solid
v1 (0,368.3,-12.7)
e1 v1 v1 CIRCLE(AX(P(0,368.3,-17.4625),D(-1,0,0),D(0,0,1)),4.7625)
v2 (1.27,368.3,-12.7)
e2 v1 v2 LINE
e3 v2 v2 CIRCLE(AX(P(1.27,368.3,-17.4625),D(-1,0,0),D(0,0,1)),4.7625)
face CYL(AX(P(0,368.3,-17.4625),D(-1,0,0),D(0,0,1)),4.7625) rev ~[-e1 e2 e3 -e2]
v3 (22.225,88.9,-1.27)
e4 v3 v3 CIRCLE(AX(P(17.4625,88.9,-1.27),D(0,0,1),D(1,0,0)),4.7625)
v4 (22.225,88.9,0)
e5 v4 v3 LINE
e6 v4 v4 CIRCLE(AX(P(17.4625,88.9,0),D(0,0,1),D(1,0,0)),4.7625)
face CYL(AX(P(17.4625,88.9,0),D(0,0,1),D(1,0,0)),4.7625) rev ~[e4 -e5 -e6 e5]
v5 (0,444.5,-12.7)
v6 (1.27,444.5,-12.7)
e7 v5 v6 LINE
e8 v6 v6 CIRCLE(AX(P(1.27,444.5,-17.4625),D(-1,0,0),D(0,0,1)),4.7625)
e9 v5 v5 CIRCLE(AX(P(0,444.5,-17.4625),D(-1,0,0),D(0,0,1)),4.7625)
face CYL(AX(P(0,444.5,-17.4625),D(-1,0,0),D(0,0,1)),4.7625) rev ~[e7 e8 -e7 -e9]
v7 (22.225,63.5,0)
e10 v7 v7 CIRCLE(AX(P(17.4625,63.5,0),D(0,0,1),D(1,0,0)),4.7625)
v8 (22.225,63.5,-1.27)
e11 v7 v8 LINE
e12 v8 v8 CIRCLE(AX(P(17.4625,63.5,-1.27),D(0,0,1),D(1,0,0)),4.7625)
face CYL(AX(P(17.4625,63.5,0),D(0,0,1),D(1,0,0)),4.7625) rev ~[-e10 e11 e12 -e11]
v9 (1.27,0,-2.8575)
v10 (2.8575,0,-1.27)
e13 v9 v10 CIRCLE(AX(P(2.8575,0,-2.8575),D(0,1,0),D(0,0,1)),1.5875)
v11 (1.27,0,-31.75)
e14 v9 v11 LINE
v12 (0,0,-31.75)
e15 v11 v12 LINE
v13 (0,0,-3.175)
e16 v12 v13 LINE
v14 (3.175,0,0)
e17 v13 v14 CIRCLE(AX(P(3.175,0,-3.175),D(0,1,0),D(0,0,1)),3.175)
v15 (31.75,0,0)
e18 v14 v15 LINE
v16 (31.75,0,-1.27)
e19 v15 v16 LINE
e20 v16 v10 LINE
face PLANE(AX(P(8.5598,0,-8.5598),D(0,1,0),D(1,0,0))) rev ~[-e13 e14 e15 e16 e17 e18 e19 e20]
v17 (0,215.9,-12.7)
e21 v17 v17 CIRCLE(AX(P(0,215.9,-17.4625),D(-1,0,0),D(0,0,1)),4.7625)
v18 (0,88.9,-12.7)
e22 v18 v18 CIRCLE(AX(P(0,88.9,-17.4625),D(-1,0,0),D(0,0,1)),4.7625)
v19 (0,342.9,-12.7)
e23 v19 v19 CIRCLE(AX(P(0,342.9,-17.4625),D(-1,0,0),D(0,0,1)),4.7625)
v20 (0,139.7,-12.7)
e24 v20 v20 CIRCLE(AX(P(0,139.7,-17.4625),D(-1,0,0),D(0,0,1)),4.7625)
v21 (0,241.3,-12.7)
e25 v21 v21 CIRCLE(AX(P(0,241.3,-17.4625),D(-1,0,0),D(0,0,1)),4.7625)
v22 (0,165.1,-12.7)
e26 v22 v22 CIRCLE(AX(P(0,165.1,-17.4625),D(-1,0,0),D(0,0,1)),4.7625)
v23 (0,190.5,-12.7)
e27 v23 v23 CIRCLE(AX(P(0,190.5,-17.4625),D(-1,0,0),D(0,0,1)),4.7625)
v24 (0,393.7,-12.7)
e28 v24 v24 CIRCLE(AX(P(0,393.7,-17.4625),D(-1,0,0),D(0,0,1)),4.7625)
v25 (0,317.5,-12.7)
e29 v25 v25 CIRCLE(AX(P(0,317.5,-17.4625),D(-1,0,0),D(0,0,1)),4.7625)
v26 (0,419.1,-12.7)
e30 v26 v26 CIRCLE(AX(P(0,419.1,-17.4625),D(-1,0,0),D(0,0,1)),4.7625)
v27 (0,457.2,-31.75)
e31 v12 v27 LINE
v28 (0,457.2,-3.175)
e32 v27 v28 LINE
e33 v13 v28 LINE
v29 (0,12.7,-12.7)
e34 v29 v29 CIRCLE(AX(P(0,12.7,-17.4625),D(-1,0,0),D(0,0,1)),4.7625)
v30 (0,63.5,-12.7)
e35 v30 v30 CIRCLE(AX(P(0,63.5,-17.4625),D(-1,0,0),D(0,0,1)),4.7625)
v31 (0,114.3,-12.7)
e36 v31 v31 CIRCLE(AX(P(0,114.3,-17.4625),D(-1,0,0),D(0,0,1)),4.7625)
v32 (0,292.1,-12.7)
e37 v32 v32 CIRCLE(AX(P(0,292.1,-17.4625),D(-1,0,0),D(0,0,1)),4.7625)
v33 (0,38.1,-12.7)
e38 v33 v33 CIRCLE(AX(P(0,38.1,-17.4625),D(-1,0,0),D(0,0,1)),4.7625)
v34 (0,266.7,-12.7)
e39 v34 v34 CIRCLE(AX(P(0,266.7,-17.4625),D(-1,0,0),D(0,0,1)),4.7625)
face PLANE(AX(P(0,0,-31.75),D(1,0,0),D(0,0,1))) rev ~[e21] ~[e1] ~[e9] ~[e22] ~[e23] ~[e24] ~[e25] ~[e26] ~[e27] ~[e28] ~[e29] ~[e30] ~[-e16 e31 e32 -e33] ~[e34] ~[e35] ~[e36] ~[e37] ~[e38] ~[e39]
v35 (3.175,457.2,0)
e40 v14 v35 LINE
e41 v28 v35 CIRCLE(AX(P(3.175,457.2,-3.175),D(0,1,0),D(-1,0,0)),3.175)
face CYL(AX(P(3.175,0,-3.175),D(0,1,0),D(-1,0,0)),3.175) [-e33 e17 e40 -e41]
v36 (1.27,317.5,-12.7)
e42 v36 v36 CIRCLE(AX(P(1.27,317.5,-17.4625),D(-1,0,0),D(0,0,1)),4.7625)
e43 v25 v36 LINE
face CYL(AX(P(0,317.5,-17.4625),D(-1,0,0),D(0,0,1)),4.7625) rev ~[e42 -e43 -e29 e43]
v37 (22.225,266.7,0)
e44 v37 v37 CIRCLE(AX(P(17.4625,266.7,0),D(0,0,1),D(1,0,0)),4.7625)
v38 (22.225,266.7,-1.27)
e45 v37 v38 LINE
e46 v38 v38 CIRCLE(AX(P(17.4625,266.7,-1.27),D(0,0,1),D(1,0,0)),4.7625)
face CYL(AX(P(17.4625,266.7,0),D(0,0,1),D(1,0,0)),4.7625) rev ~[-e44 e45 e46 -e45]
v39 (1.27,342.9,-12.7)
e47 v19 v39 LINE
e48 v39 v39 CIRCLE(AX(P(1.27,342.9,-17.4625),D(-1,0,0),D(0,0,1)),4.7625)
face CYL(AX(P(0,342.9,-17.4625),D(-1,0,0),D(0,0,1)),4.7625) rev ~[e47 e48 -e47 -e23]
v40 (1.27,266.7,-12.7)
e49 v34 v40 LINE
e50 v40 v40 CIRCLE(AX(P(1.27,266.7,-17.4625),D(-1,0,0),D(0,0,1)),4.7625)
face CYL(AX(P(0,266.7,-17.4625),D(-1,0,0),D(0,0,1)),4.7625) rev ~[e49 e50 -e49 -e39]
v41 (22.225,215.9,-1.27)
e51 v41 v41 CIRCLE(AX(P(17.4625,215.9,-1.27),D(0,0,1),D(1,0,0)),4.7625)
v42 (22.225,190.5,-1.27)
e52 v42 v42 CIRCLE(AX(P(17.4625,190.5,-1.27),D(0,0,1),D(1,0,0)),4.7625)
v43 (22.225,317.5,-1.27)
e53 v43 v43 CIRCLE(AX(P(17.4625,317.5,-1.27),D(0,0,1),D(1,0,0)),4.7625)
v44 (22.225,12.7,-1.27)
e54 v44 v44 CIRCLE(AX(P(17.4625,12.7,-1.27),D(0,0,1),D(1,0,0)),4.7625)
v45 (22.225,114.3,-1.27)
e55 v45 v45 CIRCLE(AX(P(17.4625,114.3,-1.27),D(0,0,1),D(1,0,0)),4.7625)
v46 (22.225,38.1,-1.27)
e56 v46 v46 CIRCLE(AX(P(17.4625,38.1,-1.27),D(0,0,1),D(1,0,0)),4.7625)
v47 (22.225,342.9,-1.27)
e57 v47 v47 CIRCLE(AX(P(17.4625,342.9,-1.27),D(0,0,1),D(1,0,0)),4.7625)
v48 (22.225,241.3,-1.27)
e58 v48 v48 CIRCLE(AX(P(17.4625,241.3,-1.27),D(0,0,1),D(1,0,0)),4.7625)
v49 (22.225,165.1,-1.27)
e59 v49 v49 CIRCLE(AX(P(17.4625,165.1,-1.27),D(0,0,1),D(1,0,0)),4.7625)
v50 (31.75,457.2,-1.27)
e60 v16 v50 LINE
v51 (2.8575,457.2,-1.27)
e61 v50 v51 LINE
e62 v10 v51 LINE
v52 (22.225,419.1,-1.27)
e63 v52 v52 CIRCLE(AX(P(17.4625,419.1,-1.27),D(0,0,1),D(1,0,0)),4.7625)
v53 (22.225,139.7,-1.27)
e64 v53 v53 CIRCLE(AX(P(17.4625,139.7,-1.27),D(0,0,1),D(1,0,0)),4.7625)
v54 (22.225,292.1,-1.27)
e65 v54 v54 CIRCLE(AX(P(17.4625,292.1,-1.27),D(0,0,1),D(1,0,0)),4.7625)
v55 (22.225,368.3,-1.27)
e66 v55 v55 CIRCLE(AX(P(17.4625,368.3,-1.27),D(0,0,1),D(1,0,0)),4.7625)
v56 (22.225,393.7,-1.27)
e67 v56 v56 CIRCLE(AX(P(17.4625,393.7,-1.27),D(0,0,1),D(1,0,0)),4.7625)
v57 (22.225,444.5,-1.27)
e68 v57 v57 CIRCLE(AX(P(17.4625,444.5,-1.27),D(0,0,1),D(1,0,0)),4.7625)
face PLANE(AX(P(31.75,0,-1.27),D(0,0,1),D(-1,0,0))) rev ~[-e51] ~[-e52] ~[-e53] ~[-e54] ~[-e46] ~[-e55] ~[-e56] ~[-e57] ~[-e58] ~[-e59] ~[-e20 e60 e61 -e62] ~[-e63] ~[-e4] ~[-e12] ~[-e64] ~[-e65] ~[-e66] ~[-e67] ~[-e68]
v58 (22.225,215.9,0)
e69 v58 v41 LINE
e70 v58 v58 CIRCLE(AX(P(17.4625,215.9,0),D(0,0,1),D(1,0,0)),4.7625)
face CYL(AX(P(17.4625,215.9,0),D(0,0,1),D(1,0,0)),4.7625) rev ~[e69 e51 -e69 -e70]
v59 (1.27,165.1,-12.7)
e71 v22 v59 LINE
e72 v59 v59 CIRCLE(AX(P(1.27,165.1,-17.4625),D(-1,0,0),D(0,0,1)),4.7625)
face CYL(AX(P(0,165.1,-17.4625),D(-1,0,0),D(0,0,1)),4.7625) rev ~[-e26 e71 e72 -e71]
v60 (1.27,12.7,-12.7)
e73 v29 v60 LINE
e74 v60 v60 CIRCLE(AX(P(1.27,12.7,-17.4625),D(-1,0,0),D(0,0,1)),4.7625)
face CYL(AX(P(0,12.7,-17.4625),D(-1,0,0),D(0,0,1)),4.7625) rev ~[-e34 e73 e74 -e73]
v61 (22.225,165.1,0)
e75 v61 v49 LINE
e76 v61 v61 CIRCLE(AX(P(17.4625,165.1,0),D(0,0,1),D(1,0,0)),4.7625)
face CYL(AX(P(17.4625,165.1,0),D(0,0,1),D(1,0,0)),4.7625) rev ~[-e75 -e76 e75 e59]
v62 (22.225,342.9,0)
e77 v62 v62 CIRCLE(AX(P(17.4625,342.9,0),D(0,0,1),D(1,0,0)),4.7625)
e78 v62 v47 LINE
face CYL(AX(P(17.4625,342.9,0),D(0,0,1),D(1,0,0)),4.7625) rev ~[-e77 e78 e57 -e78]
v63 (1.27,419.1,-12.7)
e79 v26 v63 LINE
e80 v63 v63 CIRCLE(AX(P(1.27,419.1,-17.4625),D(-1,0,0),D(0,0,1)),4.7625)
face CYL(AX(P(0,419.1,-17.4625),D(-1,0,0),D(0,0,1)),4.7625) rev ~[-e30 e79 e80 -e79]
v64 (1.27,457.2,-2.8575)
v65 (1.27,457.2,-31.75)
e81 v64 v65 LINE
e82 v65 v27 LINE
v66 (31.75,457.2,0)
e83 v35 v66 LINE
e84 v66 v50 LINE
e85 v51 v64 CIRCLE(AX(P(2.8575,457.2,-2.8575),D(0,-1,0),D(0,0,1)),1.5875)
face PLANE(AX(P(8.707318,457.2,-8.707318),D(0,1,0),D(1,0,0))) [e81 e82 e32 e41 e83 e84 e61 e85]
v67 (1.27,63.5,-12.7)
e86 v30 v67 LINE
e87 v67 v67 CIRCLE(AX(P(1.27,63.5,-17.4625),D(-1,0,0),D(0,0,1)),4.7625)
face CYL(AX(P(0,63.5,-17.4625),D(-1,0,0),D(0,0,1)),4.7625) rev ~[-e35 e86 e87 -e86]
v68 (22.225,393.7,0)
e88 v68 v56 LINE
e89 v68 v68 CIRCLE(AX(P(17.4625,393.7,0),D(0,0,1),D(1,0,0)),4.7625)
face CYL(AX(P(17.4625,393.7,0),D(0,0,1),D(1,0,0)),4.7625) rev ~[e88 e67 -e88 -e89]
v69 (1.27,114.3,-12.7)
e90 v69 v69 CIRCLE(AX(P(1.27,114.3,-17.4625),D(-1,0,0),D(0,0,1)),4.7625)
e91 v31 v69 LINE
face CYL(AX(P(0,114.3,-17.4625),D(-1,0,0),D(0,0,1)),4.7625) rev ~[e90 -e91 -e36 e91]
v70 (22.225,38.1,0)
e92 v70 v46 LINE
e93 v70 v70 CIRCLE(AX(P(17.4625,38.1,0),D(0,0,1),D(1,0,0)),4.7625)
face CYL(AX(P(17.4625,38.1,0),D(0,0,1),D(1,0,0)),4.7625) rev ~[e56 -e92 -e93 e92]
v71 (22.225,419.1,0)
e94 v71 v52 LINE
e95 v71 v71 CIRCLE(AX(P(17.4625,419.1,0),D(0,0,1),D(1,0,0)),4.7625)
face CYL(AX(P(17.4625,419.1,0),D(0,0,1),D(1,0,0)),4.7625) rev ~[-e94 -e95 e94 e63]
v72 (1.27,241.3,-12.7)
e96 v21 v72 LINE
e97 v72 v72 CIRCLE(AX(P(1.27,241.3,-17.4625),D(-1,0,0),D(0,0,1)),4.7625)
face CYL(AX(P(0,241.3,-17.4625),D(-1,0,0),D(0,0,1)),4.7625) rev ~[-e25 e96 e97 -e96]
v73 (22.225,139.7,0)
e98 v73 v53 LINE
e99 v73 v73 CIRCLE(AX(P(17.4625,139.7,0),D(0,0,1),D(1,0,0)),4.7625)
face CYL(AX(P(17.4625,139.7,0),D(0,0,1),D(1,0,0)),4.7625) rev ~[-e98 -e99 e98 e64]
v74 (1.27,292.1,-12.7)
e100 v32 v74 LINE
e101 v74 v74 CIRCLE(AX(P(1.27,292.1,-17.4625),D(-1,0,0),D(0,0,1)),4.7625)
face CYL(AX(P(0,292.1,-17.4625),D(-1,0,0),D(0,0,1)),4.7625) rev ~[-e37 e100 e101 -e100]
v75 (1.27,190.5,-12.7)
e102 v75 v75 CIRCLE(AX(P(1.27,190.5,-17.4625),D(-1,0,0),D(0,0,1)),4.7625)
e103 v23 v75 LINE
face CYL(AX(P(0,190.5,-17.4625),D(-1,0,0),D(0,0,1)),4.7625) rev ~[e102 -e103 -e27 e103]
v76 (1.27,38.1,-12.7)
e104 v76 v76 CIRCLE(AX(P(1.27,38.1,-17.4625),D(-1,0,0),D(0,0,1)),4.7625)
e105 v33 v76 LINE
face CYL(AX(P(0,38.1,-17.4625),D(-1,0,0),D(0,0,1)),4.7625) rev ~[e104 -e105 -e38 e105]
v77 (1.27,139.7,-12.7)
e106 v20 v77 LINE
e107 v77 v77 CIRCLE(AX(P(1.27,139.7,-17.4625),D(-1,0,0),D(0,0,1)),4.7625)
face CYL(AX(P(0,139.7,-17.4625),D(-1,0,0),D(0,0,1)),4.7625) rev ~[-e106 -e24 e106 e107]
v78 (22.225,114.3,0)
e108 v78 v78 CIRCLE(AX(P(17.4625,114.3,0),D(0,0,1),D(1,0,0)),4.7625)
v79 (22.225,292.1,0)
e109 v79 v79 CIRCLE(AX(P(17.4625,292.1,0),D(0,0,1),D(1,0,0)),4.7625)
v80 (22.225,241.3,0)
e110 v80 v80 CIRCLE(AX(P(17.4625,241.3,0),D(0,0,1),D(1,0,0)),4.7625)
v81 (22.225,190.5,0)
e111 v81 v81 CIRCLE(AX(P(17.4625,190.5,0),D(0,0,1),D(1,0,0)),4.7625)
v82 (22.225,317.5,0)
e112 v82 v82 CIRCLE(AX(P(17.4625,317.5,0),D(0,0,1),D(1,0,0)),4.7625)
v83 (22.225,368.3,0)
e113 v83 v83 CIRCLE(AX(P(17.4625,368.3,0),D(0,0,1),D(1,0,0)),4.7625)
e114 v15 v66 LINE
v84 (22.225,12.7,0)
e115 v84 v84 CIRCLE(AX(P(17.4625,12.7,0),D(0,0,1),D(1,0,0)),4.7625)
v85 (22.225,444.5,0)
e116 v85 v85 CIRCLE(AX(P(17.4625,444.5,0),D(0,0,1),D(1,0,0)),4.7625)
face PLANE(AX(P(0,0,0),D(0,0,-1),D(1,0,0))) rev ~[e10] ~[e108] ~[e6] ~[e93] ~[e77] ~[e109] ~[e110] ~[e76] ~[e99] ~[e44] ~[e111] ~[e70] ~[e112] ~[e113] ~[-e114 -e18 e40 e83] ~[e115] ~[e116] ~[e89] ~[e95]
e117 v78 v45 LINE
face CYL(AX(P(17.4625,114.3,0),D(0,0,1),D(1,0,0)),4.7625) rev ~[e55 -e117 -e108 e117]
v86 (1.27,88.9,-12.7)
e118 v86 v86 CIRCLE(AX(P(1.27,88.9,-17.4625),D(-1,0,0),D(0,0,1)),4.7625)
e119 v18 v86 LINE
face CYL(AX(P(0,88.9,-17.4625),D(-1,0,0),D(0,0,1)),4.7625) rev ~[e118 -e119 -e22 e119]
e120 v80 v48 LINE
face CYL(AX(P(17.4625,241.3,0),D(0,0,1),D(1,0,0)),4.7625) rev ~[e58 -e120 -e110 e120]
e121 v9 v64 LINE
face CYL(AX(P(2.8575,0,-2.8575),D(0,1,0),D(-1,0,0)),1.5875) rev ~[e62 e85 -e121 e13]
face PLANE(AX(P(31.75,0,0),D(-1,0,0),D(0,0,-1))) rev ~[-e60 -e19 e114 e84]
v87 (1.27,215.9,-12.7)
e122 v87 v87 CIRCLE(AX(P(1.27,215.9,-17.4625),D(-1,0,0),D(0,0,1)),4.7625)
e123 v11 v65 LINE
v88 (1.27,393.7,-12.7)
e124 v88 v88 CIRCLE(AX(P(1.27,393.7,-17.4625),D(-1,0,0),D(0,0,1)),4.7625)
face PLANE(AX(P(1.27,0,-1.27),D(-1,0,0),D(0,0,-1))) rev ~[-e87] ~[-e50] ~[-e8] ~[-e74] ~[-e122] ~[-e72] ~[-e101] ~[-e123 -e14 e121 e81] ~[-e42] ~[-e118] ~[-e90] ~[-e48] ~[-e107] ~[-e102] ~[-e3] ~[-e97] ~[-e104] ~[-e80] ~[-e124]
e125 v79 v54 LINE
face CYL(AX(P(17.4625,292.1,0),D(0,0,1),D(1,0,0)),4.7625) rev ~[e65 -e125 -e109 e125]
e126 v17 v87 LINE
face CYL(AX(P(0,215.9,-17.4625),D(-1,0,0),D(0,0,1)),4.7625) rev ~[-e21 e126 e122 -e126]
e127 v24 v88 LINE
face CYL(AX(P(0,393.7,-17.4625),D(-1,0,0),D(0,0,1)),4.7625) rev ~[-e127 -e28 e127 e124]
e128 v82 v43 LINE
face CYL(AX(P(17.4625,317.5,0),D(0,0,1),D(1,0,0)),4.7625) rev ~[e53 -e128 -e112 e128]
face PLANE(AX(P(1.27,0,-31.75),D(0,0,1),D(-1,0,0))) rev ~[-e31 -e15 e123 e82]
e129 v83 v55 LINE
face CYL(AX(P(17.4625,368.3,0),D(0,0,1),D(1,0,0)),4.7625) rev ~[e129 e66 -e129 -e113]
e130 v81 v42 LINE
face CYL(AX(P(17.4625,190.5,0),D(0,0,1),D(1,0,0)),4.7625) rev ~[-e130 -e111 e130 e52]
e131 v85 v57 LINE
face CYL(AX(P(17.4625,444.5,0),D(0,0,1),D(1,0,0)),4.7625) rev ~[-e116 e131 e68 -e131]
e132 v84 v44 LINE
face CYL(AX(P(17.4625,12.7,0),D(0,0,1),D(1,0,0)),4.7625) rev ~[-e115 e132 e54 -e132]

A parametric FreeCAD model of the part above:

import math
import FreeCAD as App
import Part
import Sketcher
Q = App.Units.Quantity


def edges_at(feature, points):
    """Names of the edges that pass closest to the given points."""
    edges = feature.Shape.Edges
    near = lambda p: min(range(len(edges)), key=lambda i: edges[i].distToShape(Part.Vertex(*p))[0])
    return sorted({f"Edge{near(p) + 1}" for p in points})

doc = App.newDocument("Part")
params = doc.addObject("Spreadsheet::Sheet", "Params")
for row, (alias, value) in enumerate([
    ("sketch1_width", "1.2 in"),
    ("sketch1_width2", "0.05 in"),
    ("pad1_length", "48 in"),
    ("sketch2_diameter", "0.375 in"),
    ("pocket1_length", "0.05 in"),
    ("sketch3_diameter", "0.375 in"),
    ("pocket2_length", "0.05 in"),
    ("fillet_radius", "0.125 in"),
    ("fillet2_radius", "0.0625 in"),
    ("sketch4_radius", "0.125 in"),
    ("sketch4_radius2", "0.0625 in"),
    ("sketch4_width", "0.05 in"),
    ("pocket3_length", "30 in"),
], start=1):
    params.set(f"A{row}", alias)
    params.set(f"B{row}", "=" + value)
    params.setAlias(f"B{row}", alias)

body = doc.addObject("PartDesign::Body", "Body")

# Sketch on XZ plane
sketch1 = body.newObject("Sketcher::SketchObject", "Sketch")
sketch1.AttachmentSupport = (doc.getObject("XZ_Plane"), [""])
sketch1.MapMode = "FlatFace"
sketch1.addGeometry([
    Part.LineSegment(App.Vector(1.3, -1.3, 0), App.Vector(1.3, -31.8, 0)),  # 0
    Part.LineSegment(App.Vector(1.3, -31.8, 0), App.Vector(0, -31.8, 0)),  # 1
    Part.LineSegment(App.Vector(0, -31.8, 0), App.Vector(0, 0, 0)),  # 2
    Part.LineSegment(App.Vector(0, 0, 0), App.Vector(31.8, 0, 0)),  # 3
    Part.LineSegment(App.Vector(31.8, 0, 0), App.Vector(31.8, -1.3, 0)),  # 4
    Part.LineSegment(App.Vector(31.8, -1.3, 0), App.Vector(1.3, -1.3, 0)),  # 5
], False)
sketch1.addConstraint([
    Sketcher.Constraint("Coincident", 0, 2, 1, 1),
    Sketcher.Constraint("Coincident", 1, 2, 2, 1),
    Sketcher.Constraint("Coincident", 2, 2, 3, 1),
    Sketcher.Constraint("Coincident", 3, 2, 4, 1),
    Sketcher.Constraint("Coincident", 4, 2, 5, 1),
    Sketcher.Constraint("Coincident", 5, 2, 0, 1),
    Sketcher.Constraint("Vertical", 0),
    Sketcher.Constraint("Horizontal", 1),
    Sketcher.Constraint("Vertical", 2),
    Sketcher.Constraint("Horizontal", 3),
    Sketcher.Constraint("Vertical", 4),
    Sketcher.Constraint("Horizontal", 5),
    Sketcher.Constraint("Coincident", 2, 2, -1, 1),
    Sketcher.Constraint("Equal", 5, 0),
    Sketcher.Constraint("Equal", 3, 2),
    Sketcher.Constraint("DistanceX", 5, 2, 5, 1, Q("1.2 in")),
    Sketcher.Constraint("DistanceX", 1, 2, 1, 1, Q("0.05 in")),
])
sketch1.setExpression("Constraints[15]", "Params.sketch1_width")
sketch1.setExpression("Constraints[16]", "Params.sketch1_width2")
pad1 = body.newObject("PartDesign::Pad", "Pad")
pad1.Profile = sketch1
pad1.setExpression("Length", "Params.pad1_length")
pad1.Reversed = True

# Sketch on YZ plane
sketch2 = body.newObject("Sketcher::SketchObject", "Sketch001")
sketch2.AttachmentSupport = (doc.getObject("YZ_Plane"), [""])
sketch2.MapMode = "FlatFace"
sketch2.addGeometry([
    Part.Circle(App.Vector(12.7, -17.5, 0), App.Vector(0, 0, 1), 4.8),  # 0
    Part.Circle(App.Vector(38.1, -17.5, 0), App.Vector(0, 0, 1), 4.8),  # 1
    Part.Circle(App.Vector(63.5, -17.5, 0), App.Vector(0, 0, 1), 4.8),  # 2
    Part.Circle(App.Vector(88.9, -17.5, 0), App.Vector(0, 0, 1), 4.8),  # 3
    Part.Circle(App.Vector(114.3, -17.5, 0), App.Vector(0, 0, 1), 4.8),  # 4
    Part.Circle(App.Vector(139.7, -17.5, 0), App.Vector(0, 0, 1), 4.8),  # 5
    Part.Circle(App.Vector(165.1, -17.5, 0), App.Vector(0, 0, 1), 4.8),  # 6
    Part.Circle(App.Vector(190.5, -17.5, 0), App.Vector(0, 0, 1), 4.8),  # 7
    Part.Circle(App.Vector(215.9, -17.5, 0), App.Vector(0, 0, 1), 4.8),  # 8
    Part.Circle(App.Vector(241.3, -17.5, 0), App.Vector(0, 0, 1), 4.8),  # 9
    Part.Circle(App.Vector(266.7, -17.5, 0), App.Vector(0, 0, 1), 4.8),  # 10
    Part.Circle(App.Vector(292.1, -17.5, 0), App.Vector(0, 0, 1), 4.8),  # 11
    Part.Circle(App.Vector(317.5, -17.5, 0), App.Vector(0, 0, 1), 4.8),  # 12
    Part.Circle(App.Vector(342.9, -17.5, 0), App.Vector(0, 0, 1), 4.8),  # 13
    Part.Circle(App.Vector(368.3, -17.5, 0), App.Vector(0, 0, 1), 4.8),  # 14
    Part.Circle(App.Vector(393.7, -17.5, 0), App.Vector(0, 0, 1), 4.8),  # 15
    Part.Circle(App.Vector(419.1, -17.5, 0), App.Vector(0, 0, 1), 4.8),  # 16
    Part.Circle(App.Vector(444.5, -17.5, 0), App.Vector(0, 0, 1), 4.8),  # 17
    Part.Circle(App.Vector(469.9, -17.5, 0), App.Vector(0, 0, 1), 4.8),  # 18
    Part.Circle(App.Vector(495.3, -17.5, 0), App.Vector(0, 0, 1), 4.8),  # 19
    Part.Circle(App.Vector(520.7, -17.5, 0), App.Vector(0, 0, 1), 4.8),  # 20
    Part.Circle(App.Vector(546.1, -17.5, 0), App.Vector(0, 0, 1), 4.8),  # 21
    Part.Circle(App.Vector(571.5, -17.5, 0), App.Vector(0, 0, 1), 4.8),  # 22
    Part.Circle(App.Vector(596.9, -17.5, 0), App.Vector(0, 0, 1), 4.8),  # 23
    Part.Circle(App.Vector(622.3, -17.5, 0), App.Vector(0, 0, 1), 4.8),  # 24
    Part.Circle(App.Vector(647.7, -17.5, 0), App.Vector(0, 0, 1), 4.8),  # 25
    Part.Circle(App.Vector(673.1, -17.5, 0), App.Vector(0, 0, 1), 4.8),  # 26
    Part.Circle(App.Vector(698.5, -17.5, 0), App.Vector(0, 0, 1), 4.8),  # 27
    Part.Circle(App.Vector(723.9, -17.5, 0), App.Vector(0, 0, 1), 4.8),  # 28
    Part.Circle(App.Vector(749.3, -17.5, 0), App.Vector(0, 0, 1), 4.8),  # 29
    Part.Circle(App.Vector(774.7, -17.5, 0), App.Vector(0, 0, 1), 4.8),  # 30
    Part.Circle(App.Vector(800.1, -17.5, 0), App.Vector(0, 0, 1), 4.8),  # 31
    Part.Circle(App.Vector(825.5, -17.5, 0), App.Vector(0, 0, 1), 4.8),  # 32
    Part.Circle(App.Vector(850.9, -17.5, 0), App.Vector(0, 0, 1), 4.8),  # 33
    Part.Circle(App.Vector(876.3, -17.5, 0), App.Vector(0, 0, 1), 4.8),  # 34
    Part.Circle(App.Vector(901.7, -17.5, 0), App.Vector(0, 0, 1), 4.8),  # 35
    Part.Circle(App.Vector(927.1, -17.5, 0), App.Vector(0, 0, 1), 4.8),  # 36
    Part.Circle(App.Vector(952.5, -17.5, 0), App.Vector(0, 0, 1), 4.8),  # 37
    Part.Circle(App.Vector(977.9, -17.5, 0), App.Vector(0, 0, 1), 4.8),  # 38
    Part.Circle(App.Vector(1003.3, -17.5, 0), App.Vector(0, 0, 1), 4.8),  # 39
    Part.Circle(App.Vector(1028.7, -17.5, 0), App.Vector(0, 0, 1), 4.8),  # 40
    Part.Circle(App.Vector(1054.1, -17.5, 0), App.Vector(0, 0, 1), 4.8),  # 41
    Part.Circle(App.Vector(1079.5, -17.5, 0), App.Vector(0, 0, 1), 4.8),  # 42
    Part.Circle(App.Vector(1104.9, -17.5, 0), App.Vector(0, 0, 1), 4.8),  # 43
    Part.Circle(App.Vector(1130.3, -17.5, 0), App.Vector(0, 0, 1), 4.8),  # 44
    Part.Circle(App.Vector(1155.7, -17.5, 0), App.Vector(0, 0, 1), 4.8),  # 45
    Part.Circle(App.Vector(1181.1, -17.5, 0), App.Vector(0, 0, 1), 4.8),  # 46
    Part.Circle(App.Vector(1206.5, -17.5, 0), App.Vector(0, 0, 1), 4.8),  # 47
], False)
sketch2.addConstraint([
    Sketcher.Constraint("Equal", 0, 1),
    Sketcher.Constraint("Equal", 1, 2),
    Sketcher.Constraint("Equal", 2, 3),
    Sketcher.Constraint("Equal", 3, 4),
    Sketcher.Constraint("Equal", 4, 5),
    Sketcher.Constraint("Equal", 5, 6),
    Sketcher.Constraint("Equal", 6, 7),
    Sketcher.Constraint("Equal", 7, 8),
    Sketcher.Constraint("Equal", 8, 9),
    Sketcher.Constraint("Equal", 9, 10),
    Sketcher.Constraint("Equal", 10, 11),
    Sketcher.Constraint("Equal", 11, 12),
    Sketcher.Constraint("Equal", 12, 13),
    Sketcher.Constraint("Equal", 13, 14),
    Sketcher.Constraint("Equal", 14, 15),
    Sketcher.Constraint("Equal", 15, 16),
    Sketcher.Constraint("Equal", 16, 17),
    Sketcher.Constraint("Equal", 17, 18),
    Sketcher.Constraint("Equal", 18, 19),
    Sketcher.Constraint("Equal", 19, 20),
    Sketcher.Constraint("Equal", 20, 21),
    Sketcher.Constraint("Equal", 21, 22),
    Sketcher.Constraint("Equal", 22, 23),
    Sketcher.Constraint("Equal", 23, 24),
    Sketcher.Constraint("Equal", 24, 25),
    Sketcher.Constraint("Equal", 25, 26),
    Sketcher.Constraint("Equal", 26, 27),
    Sketcher.Constraint("Equal", 27, 28),
    Sketcher.Constraint("Equal", 28, 29),
    Sketcher.Constraint("Equal", 29, 30),
    Sketcher.Constraint("Equal", 30, 31),
    Sketcher.Constraint("Equal", 31, 32),
    Sketcher.Constraint("Equal", 32, 33),
    Sketcher.Constraint("Equal", 33, 34),
    Sketcher.Constraint("Equal", 34, 35),
    Sketcher.Constraint("Equal", 35, 36),
    Sketcher.Constraint("Equal", 36, 37),
    Sketcher.Constraint("Equal", 37, 38),
    Sketcher.Constraint("Equal", 38, 39),
    Sketcher.Constraint("Equal", 39, 40),
    Sketcher.Constraint("Equal", 40, 41),
    Sketcher.Constraint("Equal", 41, 42),
    Sketcher.Constraint("Equal", 42, 43),
    Sketcher.Constraint("Equal", 43, 44),
    Sketcher.Constraint("Equal", 44, 45),
    Sketcher.Constraint("Equal", 45, 46),
    Sketcher.Constraint("Equal", 46, 47),
    Sketcher.Constraint("Horizontal", 0, 3, 1, 3),
    Sketcher.Constraint("Horizontal", 1, 3, 2, 3),
    Sketcher.Constraint("Horizontal", 2, 3, 3, 3),
    Sketcher.Constraint("Horizontal", 3, 3, 4, 3),
    Sketcher.Constraint("Horizontal", 4, 3, 5, 3),
    Sketcher.Constraint("Horizontal", 5, 3, 6, 3),
    Sketcher.Constraint("Horizontal", 6, 3, 7, 3),
    Sketcher.Constraint("Horizontal", 7, 3, 8, 3),
    Sketcher.Constraint("Horizontal", 8, 3, 9, 3),
    Sketcher.Constraint("Horizontal", 9, 3, 10, 3),
    Sketcher.Constraint("Horizontal", 10, 3, 11, 3),
    Sketcher.Constraint("Horizontal", 11, 3, 12, 3),
    Sketcher.Constraint("Horizontal", 12, 3, 13, 3),
    Sketcher.Constraint("Horizontal", 13, 3, 14, 3),
    Sketcher.Constraint("Horizontal", 14, 3, 15, 3),
    Sketcher.Constraint("Horizontal", 15, 3, 16, 3),
    Sketcher.Constraint("Horizontal", 16, 3, 17, 3),
    Sketcher.Constraint("Horizontal", 17, 3, 18, 3),
    Sketcher.Constraint("Horizontal", 18, 3, 19, 3),
    Sketcher.Constraint("Horizontal", 19, 3, 20, 3),
    Sketcher.Constraint("Horizontal", 20, 3, 21, 3),
    Sketcher.Constraint("Horizontal", 21, 3, 22, 3),
    Sketcher.Constraint("Horizontal", 22, 3, 23, 3),
    Sketcher.Constraint("Horizontal", 23, 3, 24, 3),
    Sketcher.Constraint("Horizontal", 24, 3, 25, 3),
    Sketcher.Constraint("Horizontal", 25, 3, 26, 3),
    Sketcher.Constraint("Horizontal", 26, 3, 27, 3),
    Sketcher.Constraint("Horizontal", 27, 3, 28, 3),
    Sketcher.Constraint("Horizontal", 28, 3, 29, 3),
    Sketcher.Constraint("Horizontal", 29, 3, 30, 3),
    Sketcher.Constraint("Horizontal", 30, 3, 31, 3),
    Sketcher.Constraint("Horizontal", 31, 3, 32, 3),
    Sketcher.Constraint("Horizontal", 32, 3, 33, 3),
    Sketcher.Constraint("Horizontal", 33, 3, 34, 3),
    Sketcher.Constraint("Horizontal", 34, 3, 35, 3),
    Sketcher.Constraint("Horizontal", 35, 3, 36, 3),
    Sketcher.Constraint("Horizontal", 36, 3, 37, 3),
    Sketcher.Constraint("Horizontal", 37, 3, 38, 3),
    Sketcher.Constraint("Horizontal", 38, 3, 39, 3),
    Sketcher.Constraint("Horizontal", 39, 3, 40, 3),
    Sketcher.Constraint("Horizontal", 40, 3, 41, 3),
    Sketcher.Constraint("Horizontal", 41, 3, 42, 3),
    Sketcher.Constraint("Horizontal", 42, 3, 43, 3),
    Sketcher.Constraint("Horizontal", 43, 3, 44, 3),
    Sketcher.Constraint("Horizontal", 44, 3, 45, 3),
    Sketcher.Constraint("Horizontal", 45, 3, 46, 3),
    Sketcher.Constraint("Horizontal", 46, 3, 47, 3),
    Sketcher.Constraint("Diameter", 0, Q("0.375 in")),
    Sketcher.Constraint("DistanceX", 0, 3, 1, 3, Q("1 in")),
    Sketcher.Constraint("DistanceX", 1, 3, 2, 3, Q("1 in")),
    Sketcher.Constraint("DistanceX", 2, 3, 3, 3, Q("1 in")),
    Sketcher.Constraint("DistanceX", 3, 3, 4, 3, Q("1 in")),
    Sketcher.Constraint("DistanceX", 4, 3, 5, 3, Q("1 in")),
    Sketcher.Constraint("DistanceX", 5, 3, 6, 3, Q("1 in")),
    Sketcher.Constraint("DistanceX", 6, 3, 7, 3, Q("1 in")),
    Sketcher.Constraint("DistanceX", 7, 3, 8, 3, Q("1 in")),
    Sketcher.Constraint("DistanceX", 8, 3, 9, 3, Q("1 in")),
    Sketcher.Constraint("DistanceX", 9, 3, 10, 3, Q("1 in")),
    Sketcher.Constraint("DistanceX", 10, 3, 11, 3, Q("1 in")),
    Sketcher.Constraint("DistanceX", 11, 3, 12, 3, Q("1 in")),
    Sketcher.Constraint("DistanceX", 12, 3, 13, 3, Q("1 in")),
    Sketcher.Constraint("DistanceX", 13, 3, 14, 3, Q("1 in")),
    Sketcher.Constraint("DistanceX", 14, 3, 15, 3, Q("1 in")),
    Sketcher.Constraint("DistanceX", 15, 3, 16, 3, Q("1 in")),
    Sketcher.Constraint("DistanceX", 16, 3, 17, 3, Q("1 in")),
    Sketcher.Constraint("DistanceX", 17, 3, 18, 3, Q("1 in")),
    Sketcher.Constraint("DistanceX", 18, 3, 19, 3, Q("1 in")),
    Sketcher.Constraint("DistanceX", 19, 3, 20, 3, Q("1 in")),
    Sketcher.Constraint("DistanceX", 20, 3, 21, 3, Q("1 in")),
    Sketcher.Constraint("DistanceX", 21, 3, 22, 3, Q("1 in")),
    Sketcher.Constraint("DistanceX", 22, 3, 23, 3, Q("1 in")),
    Sketcher.Constraint("DistanceX", 23, 3, 24, 3, Q("1 in")),
    Sketcher.Constraint("DistanceX", 24, 3, 25, 3, Q("1 in")),
    Sketcher.Constraint("DistanceX", 25, 3, 26, 3, Q("1 in")),
    Sketcher.Constraint("DistanceX", 26, 3, 27, 3, Q("1 in")),
    Sketcher.Constraint("DistanceX", 27, 3, 28, 3, Q("1 in")),
    Sketcher.Constraint("DistanceX", 28, 3, 29, 3, Q("1 in")),
    Sketcher.Constraint("DistanceX", 29, 3, 30, 3, Q("1 in")),
    Sketcher.Constraint("DistanceX", 30, 3, 31, 3, Q("1 in")),
    Sketcher.Constraint("DistanceX", 31, 3, 32, 3, Q("1 in")),
    Sketcher.Constraint("DistanceX", 32, 3, 33, 3, Q("1 in")),
    Sketcher.Constraint("DistanceX", 33, 3, 34, 3, Q("1 in")),
    Sketcher.Constraint("DistanceX", 34, 3, 35, 3, Q("1 in")),
    Sketcher.Constraint("DistanceX", 35, 3, 36, 3, Q("1 in")),
    Sketcher.Constraint("DistanceX", 36, 3, 37, 3, Q("1 in")),
    Sketcher.Constraint("DistanceX", 37, 3, 38, 3, Q("1 in")),
    Sketcher.Constraint("DistanceX", 38, 3, 39, 3, Q("1 in")),
    Sketcher.Constraint("DistanceX", 39, 3, 40, 3, Q("1 in")),
    Sketcher.Constraint("DistanceX", 40, 3, 41, 3, Q("1 in")),
    Sketcher.Constraint("DistanceX", 41, 3, 42, 3, Q("1 in")),
    Sketcher.Constraint("DistanceX", 42, 3, 43, 3, Q("1 in")),
    Sketcher.Constraint("DistanceX", 43, 3, 44, 3, Q("1 in")),
    Sketcher.Constraint("DistanceX", 44, 3, 45, 3, Q("1 in")),
    Sketcher.Constraint("DistanceX", 45, 3, 46, 3, Q("1 in")),
    Sketcher.Constraint("DistanceX", 46, 3, 47, 3, Q("1 in")),
    Sketcher.Constraint("DistanceX", -1, 1, 0, 3, Q("0.5 in")),
    Sketcher.Constraint("DistanceY", 0, 3, -1, 1, Q("0.6875 in")),
])
sketch2.setExpression("Constraints[94]", "Params.sketch2_diameter")
pocket1 = body.newObject("PartDesign::Pocket", "Pocket")
pocket1.Profile = sketch2
pocket1.setExpression("Length", "Params.pocket1_length")
pocket1.Reversed = True

# Sketch on XY plane
sketch3 = body.newObject("Sketcher::SketchObject", "Sketch002")
sketch3.AttachmentSupport = (doc.getObject("XY_Plane"), [""])
sketch3.MapMode = "FlatFace"
sketch3.addGeometry([
    Part.Circle(App.Vector(17.5, 1206.5, 0), App.Vector(0, 0, 1), 4.8),  # 0
    Part.Circle(App.Vector(17.5, 1181.1, 0), App.Vector(0, 0, 1), 4.8),  # 1
    Part.Circle(App.Vector(17.5, 1155.7, 0), App.Vector(0, 0, 1), 4.8),  # 2
    Part.Circle(App.Vector(17.5, 1130.3, 0), App.Vector(0, 0, 1), 4.8),  # 3
    Part.Circle(App.Vector(17.5, 1104.9, 0), App.Vector(0, 0, 1), 4.8),  # 4
    Part.Circle(App.Vector(17.5, 1079.5, 0), App.Vector(0, 0, 1), 4.8),  # 5
    Part.Circle(App.Vector(17.5, 1054.1, 0), App.Vector(0, 0, 1), 4.8),  # 6
    Part.Circle(App.Vector(17.5, 1028.7, 0), App.Vector(0, 0, 1), 4.8),  # 7
    Part.Circle(App.Vector(17.5, 1003.3, 0), App.Vector(0, 0, 1), 4.8),  # 8
    Part.Circle(App.Vector(17.5, 977.9, 0), App.Vector(0, 0, 1), 4.8),  # 9
    Part.Circle(App.Vector(17.5, 952.5, 0), App.Vector(0, 0, 1), 4.8),  # 10
    Part.Circle(App.Vector(17.5, 927.1, 0), App.Vector(0, 0, 1), 4.8),  # 11
    Part.Circle(App.Vector(17.5, 901.7, 0), App.Vector(0, 0, 1), 4.8),  # 12
    Part.Circle(App.Vector(17.5, 876.3, 0), App.Vector(0, 0, 1), 4.8),  # 13
    Part.Circle(App.Vector(17.5, 850.9, 0), App.Vector(0, 0, 1), 4.8),  # 14
    Part.Circle(App.Vector(17.5, 825.5, 0), App.Vector(0, 0, 1), 4.8),  # 15
    Part.Circle(App.Vector(17.5, 800.1, 0), App.Vector(0, 0, 1), 4.8),  # 16
    Part.Circle(App.Vector(17.5, 774.7, 0), App.Vector(0, 0, 1), 4.8),  # 17
    Part.Circle(App.Vector(17.5, 749.3, 0), App.Vector(0, 0, 1), 4.8),  # 18
    Part.Circle(App.Vector(17.5, 723.9, 0), App.Vector(0, 0, 1), 4.8),  # 19
    Part.Circle(App.Vector(17.5, 698.5, 0), App.Vector(0, 0, 1), 4.8),  # 20
    Part.Circle(App.Vector(17.5, 673.1, 0), App.Vector(0, 0, 1), 4.8),  # 21
    Part.Circle(App.Vector(17.5, 647.7, 0), App.Vector(0, 0, 1), 4.8),  # 22
    Part.Circle(App.Vector(17.5, 622.3, 0), App.Vector(0, 0, 1), 4.8),  # 23
    Part.Circle(App.Vector(17.5, 596.9, 0), App.Vector(0, 0, 1), 4.8),  # 24
    Part.Circle(App.Vector(17.5, 571.5, 0), App.Vector(0, 0, 1), 4.8),  # 25
    Part.Circle(App.Vector(17.5, 546.1, 0), App.Vector(0, 0, 1), 4.8),  # 26
    Part.Circle(App.Vector(17.5, 520.7, 0), App.Vector(0, 0, 1), 4.8),  # 27
    Part.Circle(App.Vector(17.5, 495.3, 0), App.Vector(0, 0, 1), 4.8),  # 28
    Part.Circle(App.Vector(17.5, 469.9, 0), App.Vector(0, 0, 1), 4.8),  # 29
    Part.Circle(App.Vector(17.5, 444.5, 0), App.Vector(0, 0, 1), 4.8),  # 30
    Part.Circle(App.Vector(17.5, 419.1, 0), App.Vector(0, 0, 1), 4.8),  # 31
    Part.Circle(App.Vector(17.5, 393.7, 0), App.Vector(0, 0, 1), 4.8),  # 32
    Part.Circle(App.Vector(17.5, 368.3, 0), App.Vector(0, 0, 1), 4.8),  # 33
    Part.Circle(App.Vector(17.5, 342.9, 0), App.Vector(0, 0, 1), 4.8),  # 34
    Part.Circle(App.Vector(17.5, 317.5, 0), App.Vector(0, 0, 1), 4.8),  # 35
    Part.Circle(App.Vector(17.5, 292.1, 0), App.Vector(0, 0, 1), 4.8),  # 36
    Part.Circle(App.Vector(17.5, 266.7, 0), App.Vector(0, 0, 1), 4.8),  # 37
    Part.Circle(App.Vector(17.5, 241.3, 0), App.Vector(0, 0, 1), 4.8),  # 38
    Part.Circle(App.Vector(17.5, 215.9, 0), App.Vector(0, 0, 1), 4.8),  # 39
    Part.Circle(App.Vector(17.5, 190.5, 0), App.Vector(0, 0, 1), 4.8),  # 40
    Part.Circle(App.Vector(17.5, 165.1, 0), App.Vector(0, 0, 1), 4.8),  # 41
    Part.Circle(App.Vector(17.5, 139.7, 0), App.Vector(0, 0, 1), 4.8),  # 42
    Part.Circle(App.Vector(17.5, 114.3, 0), App.Vector(0, 0, 1), 4.8),  # 43
    Part.Circle(App.Vector(17.5, 88.9, 0), App.Vector(0, 0, 1), 4.8),  # 44
    Part.Circle(App.Vector(17.5, 63.5, 0), App.Vector(0, 0, 1), 4.8),  # 45
    Part.Circle(App.Vector(17.5, 38.1, 0), App.Vector(0, 0, 1), 4.8),  # 46
    Part.Circle(App.Vector(17.5, 12.7, 0), App.Vector(0, 0, 1), 4.8),  # 47
], False)
sketch3.addConstraint([
    Sketcher.Constraint("Equal", 0, 1),
    Sketcher.Constraint("Equal", 1, 2),
    Sketcher.Constraint("Equal", 2, 3),
    Sketcher.Constraint("Equal", 3, 4),
    Sketcher.Constraint("Equal", 4, 5),
    Sketcher.Constraint("Equal", 5, 6),
    Sketcher.Constraint("Equal", 6, 7),
    Sketcher.Constraint("Equal", 7, 8),
    Sketcher.Constraint("Equal", 8, 9),
    Sketcher.Constraint("Equal", 9, 10),
    Sketcher.Constraint("Equal", 10, 11),
    Sketcher.Constraint("Equal", 11, 12),
    Sketcher.Constraint("Equal", 12, 13),
    Sketcher.Constraint("Equal", 13, 14),
    Sketcher.Constraint("Equal", 14, 15),
    Sketcher.Constraint("Equal", 15, 16),
    Sketcher.Constraint("Equal", 16, 17),
    Sketcher.Constraint("Equal", 17, 18),
    Sketcher.Constraint("Equal", 18, 19),
    Sketcher.Constraint("Equal", 19, 20),
    Sketcher.Constraint("Equal", 20, 21),
    Sketcher.Constraint("Equal", 21, 22),
    Sketcher.Constraint("Equal", 22, 23),
    Sketcher.Constraint("Equal", 23, 24),
    Sketcher.Constraint("Equal", 24, 25),
    Sketcher.Constraint("Equal", 25, 26),
    Sketcher.Constraint("Equal", 26, 27),
    Sketcher.Constraint("Equal", 27, 28),
    Sketcher.Constraint("Equal", 28, 29),
    Sketcher.Constraint("Equal", 29, 30),
    Sketcher.Constraint("Equal", 30, 31),
    Sketcher.Constraint("Equal", 31, 32),
    Sketcher.Constraint("Equal", 32, 33),
    Sketcher.Constraint("Equal", 33, 34),
    Sketcher.Constraint("Equal", 34, 35),
    Sketcher.Constraint("Equal", 35, 36),
    Sketcher.Constraint("Equal", 36, 37),
    Sketcher.Constraint("Equal", 37, 38),
    Sketcher.Constraint("Equal", 38, 39),
    Sketcher.Constraint("Equal", 39, 40),
    Sketcher.Constraint("Equal", 40, 41),
    Sketcher.Constraint("Equal", 41, 42),
    Sketcher.Constraint("Equal", 42, 43),
    Sketcher.Constraint("Equal", 43, 44),
    Sketcher.Constraint("Equal", 44, 45),
    Sketcher.Constraint("Equal", 45, 46),
    Sketcher.Constraint("Equal", 46, 47),
    Sketcher.Constraint("Vertical", 0, 3, 1, 3),
    Sketcher.Constraint("Vertical", 1, 3, 2, 3),
    Sketcher.Constraint("Vertical", 2, 3, 3, 3),
    Sketcher.Constraint("Vertical", 3, 3, 4, 3),
    Sketcher.Constraint("Vertical", 4, 3, 5, 3),
    Sketcher.Constraint("Vertical", 5, 3, 6, 3),
    Sketcher.Constraint("Vertical", 6, 3, 7, 3),
    Sketcher.Constraint("Vertical", 7, 3, 8, 3),
    Sketcher.Constraint("Vertical", 8, 3, 9, 3),
    Sketcher.Constraint("Vertical", 9, 3, 10, 3),
    Sketcher.Constraint("Vertical", 10, 3, 11, 3),
    Sketcher.Constraint("Vertical", 11, 3, 12, 3),
    Sketcher.Constraint("Vertical", 12, 3, 13, 3),
    Sketcher.Constraint("Vertical", 13, 3, 14, 3),
    Sketcher.Constraint("Vertical", 14, 3, 15, 3),
    Sketcher.Constraint("Vertical", 15, 3, 16, 3),
    Sketcher.Constraint("Vertical", 16, 3, 17, 3),
    Sketcher.Constraint("Vertical", 17, 3, 18, 3),
    Sketcher.Constraint("Vertical", 18, 3, 19, 3),
    Sketcher.Constraint("Vertical", 19, 3, 20, 3),
    Sketcher.Constraint("Vertical", 20, 3, 21, 3),
    Sketcher.Constraint("Vertical", 21, 3, 22, 3),
    Sketcher.Constraint("Vertical", 22, 3, 23, 3),
    Sketcher.Constraint("Vertical", 23, 3, 24, 3),
    Sketcher.Constraint("Vertical", 24, 3, 25, 3),
    Sketcher.Constraint("Vertical", 25, 3, 26, 3),
    Sketcher.Constraint("Vertical", 26, 3, 27, 3),
    Sketcher.Constraint("Vertical", 27, 3, 28, 3),
    Sketcher.Constraint("Vertical", 28, 3, 29, 3),
    Sketcher.Constraint("Vertical", 29, 3, 30, 3),
    Sketcher.Constraint("Vertical", 30, 3, 31, 3),
    Sketcher.Constraint("Vertical", 31, 3, 32, 3),
    Sketcher.Constraint("Vertical", 32, 3, 33, 3),
    Sketcher.Constraint("Vertical", 33, 3, 34, 3),
    Sketcher.Constraint("Vertical", 34, 3, 35, 3),
    Sketcher.Constraint("Vertical", 35, 3, 36, 3),
    Sketcher.Constraint("Vertical", 36, 3, 37, 3),
    Sketcher.Constraint("Vertical", 37, 3, 38, 3),
    Sketcher.Constraint("Vertical", 38, 3, 39, 3),
    Sketcher.Constraint("Vertical", 39, 3, 40, 3),
    Sketcher.Constraint("Vertical", 40, 3, 41, 3),
    Sketcher.Constraint("Vertical", 41, 3, 42, 3),
    Sketcher.Constraint("Vertical", 42, 3, 43, 3),
    Sketcher.Constraint("Vertical", 43, 3, 44, 3),
    Sketcher.Constraint("Vertical", 44, 3, 45, 3),
    Sketcher.Constraint("Vertical", 45, 3, 46, 3),
    Sketcher.Constraint("Vertical", 46, 3, 47, 3),
    Sketcher.Constraint("Diameter", 0, Q("0.375 in")),
    Sketcher.Constraint("DistanceY", 1, 3, 0, 3, Q("1 in")),
    Sketcher.Constraint("DistanceY", 2, 3, 1, 3, Q("1 in")),
    Sketcher.Constraint("DistanceY", 3, 3, 2, 3, Q("1 in")),
    Sketcher.Constraint("DistanceY", 4, 3, 3, 3, Q("1 in")),
    Sketcher.Constraint("DistanceY", 5, 3, 4, 3, Q("1 in")),
    Sketcher.Constraint("DistanceY", 6, 3, 5, 3, Q("1 in")),
    Sketcher.Constraint("DistanceY", 7, 3, 6, 3, Q("1 in")),
    Sketcher.Constraint("DistanceY", 8, 3, 7, 3, Q("1 in")),
    Sketcher.Constraint("DistanceY", 9, 3, 8, 3, Q("1 in")),
    Sketcher.Constraint("DistanceY", 10, 3, 9, 3, Q("1 in")),
    Sketcher.Constraint("DistanceY", 11, 3, 10, 3, Q("1 in")),
    Sketcher.Constraint("DistanceY", 12, 3, 11, 3, Q("1 in")),
    Sketcher.Constraint("DistanceY", 13, 3, 12, 3, Q("1 in")),
    Sketcher.Constraint("DistanceY", 14, 3, 13, 3, Q("1 in")),
    Sketcher.Constraint("DistanceY", 15, 3, 14, 3, Q("1 in")),
    Sketcher.Constraint("DistanceY", 16, 3, 15, 3, Q("1 in")),
    Sketcher.Constraint("DistanceY", 17, 3, 16, 3, Q("1 in")),
    Sketcher.Constraint("DistanceY", 18, 3, 17, 3, Q("1 in")),
    Sketcher.Constraint("DistanceY", 19, 3, 18, 3, Q("1 in")),
    Sketcher.Constraint("DistanceY", 20, 3, 19, 3, Q("1 in")),
    Sketcher.Constraint("DistanceY", 21, 3, 20, 3, Q("1 in")),
    Sketcher.Constraint("DistanceY", 22, 3, 21, 3, Q("1 in")),
    Sketcher.Constraint("DistanceY", 23, 3, 22, 3, Q("1 in")),
    Sketcher.Constraint("DistanceY", 24, 3, 23, 3, Q("1 in")),
    Sketcher.Constraint("DistanceY", 25, 3, 24, 3, Q("1 in")),
    Sketcher.Constraint("DistanceY", 26, 3, 25, 3, Q("1 in")),
    Sketcher.Constraint("DistanceY", 27, 3, 26, 3, Q("1 in")),
    Sketcher.Constraint("DistanceY", 28, 3, 27, 3, Q("1 in")),
    Sketcher.Constraint("DistanceY", 29, 3, 28, 3, Q("1 in")),
    Sketcher.Constraint("DistanceY", 30, 3, 29, 3, Q("1 in")),
    Sketcher.Constraint("DistanceY", 31, 3, 30, 3, Q("1 in")),
    Sketcher.Constraint("DistanceY", 32, 3, 31, 3, Q("1 in")),
    Sketcher.Constraint("DistanceY", 33, 3, 32, 3, Q("1 in")),
    Sketcher.Constraint("DistanceY", 34, 3, 33, 3, Q("1 in")),
    Sketcher.Constraint("DistanceY", 35, 3, 34, 3, Q("1 in")),
    Sketcher.Constraint("DistanceY", 36, 3, 35, 3, Q("1 in")),
    Sketcher.Constraint("DistanceY", 37, 3, 36, 3, Q("1 in")),
    Sketcher.Constraint("DistanceY", 38, 3, 37, 3, Q("1 in")),
    Sketcher.Constraint("DistanceY", 39, 3, 38, 3, Q("1 in")),
    Sketcher.Constraint("DistanceY", 40, 3, 39, 3, Q("1 in")),
    Sketcher.Constraint("DistanceY", 41, 3, 40, 3, Q("1 in")),
    Sketcher.Constraint("DistanceY", 42, 3, 41, 3, Q("1 in")),
    Sketcher.Constraint("DistanceY", 43, 3, 42, 3, Q("1 in")),
    Sketcher.Constraint("DistanceY", 44, 3, 43, 3, Q("1 in")),
    Sketcher.Constraint("DistanceY", 45, 3, 44, 3, Q("1 in")),
    Sketcher.Constraint("DistanceY", 46, 3, 45, 3, Q("1 in")),
    Sketcher.Constraint("DistanceY", 47, 3, 46, 3, Q("1 in")),
    Sketcher.Constraint("DistanceY", -1, 1, 0, 3, Q("47.5 in")),
    Sketcher.Constraint("DistanceX", -1, 1, 0, 3, Q("0.6875 in")),
])
sketch3.setExpression("Constraints[94]", "Params.sketch3_diameter")
pocket2 = body.newObject("PartDesign::Pocket", "Pocket001")
pocket2.Profile = sketch3
pocket2.setExpression("Length", "Params.pocket2_length")
doc.recompute()

fillet = body.newObject("PartDesign::Fillet", "Fillet")
fillet.Base = (pocket2, edges_at(pocket2, [(0, 609.6, 0)]))
fillet.setExpression("Radius", "Params.fillet_radius")
doc.recompute()

fillet2 = body.newObject("PartDesign::Fillet", "Fillet001")
fillet2.Base = (fillet, edges_at(fillet, [(1.27, 609.6, -1.27)]))
fillet2.setExpression("Radius", "Params.fillet2_radius")

# Sketch on XZ plane
sketch4 = body.newObject("Sketcher::SketchObject", "Sketch003")
sketch4.AttachmentSupport = (doc.getObject("XZ_Plane"), [""])
sketch4.MapMode = "FlatFace"
sketch4.AttachmentOffset = App.Placement(App.Vector(0, 0, -48 * 25.4), App.Rotation())
sketch4.addGeometry([
    Part.LineSegment(App.Vector(0, -31.8, 0), App.Vector(0, -3.2, 0)),  # 0
    Part.ArcOfCircle(Part.Circle(App.Vector(3.2, -3.2, 0), App.Vector(0, 0, 1), 3.2), math.radians(90), math.radians(180)),  # 1
    Part.LineSegment(App.Vector(3.2, 0, 0), App.Vector(31.8, 0, 0)),  # 2
    Part.LineSegment(App.Vector(31.8, 0, 0), App.Vector(31.8, -1.3, 0)),  # 3
    Part.LineSegment(App.Vector(31.8, -1.3, 0), App.Vector(2.9, -1.3, 0)),  # 4
    Part.ArcOfCircle(Part.Circle(App.Vector(2.9, -2.9, 0), App.Vector(0, 0, 1), 1.6), math.radians(90), math.radians(180)),  # 5
    Part.LineSegment(App.Vector(1.3, -2.9, 0), App.Vector(1.3, -31.8, 0)),  # 6
    Part.LineSegment(App.Vector(1.3, -31.8, 0), App.Vector(0, -31.8, 0)),  # 7
], False)
sketch4.addConstraint([
    Sketcher.Constraint("Tangent", 0, 2, 1, 2),
    Sketcher.Constraint("Tangent", 1, 1, 2, 1),
    Sketcher.Constraint("Coincident", 2, 2, 3, 1),
    Sketcher.Constraint("Coincident", 3, 2, 4, 1),
    Sketcher.Constraint("Tangent", 4, 2, 5, 1),
    Sketcher.Constraint("Tangent", 5, 2, 6, 1),
    Sketcher.Constraint("Coincident", 6, 2, 7, 1),
    Sketcher.Constraint("Coincident", 7, 2, 0, 1),
    Sketcher.Constraint("Vertical", 0),
    Sketcher.Constraint("Horizontal", 2),
    Sketcher.Constraint("Vertical", 3),
    Sketcher.Constraint("Horizontal", 4),
    Sketcher.Constraint("Vertical", 6),
    Sketcher.Constraint("Horizontal", 7),
    Sketcher.Constraint("PointOnObject", 0, 2, -2),
    Sketcher.Constraint("PointOnObject", 1, 1, -1),
    Sketcher.Constraint("Equal", 2, 0),
    Sketcher.Constraint("Equal", 7, 3),
    Sketcher.Constraint("Radius", 1, Q("0.125 in")),
    Sketcher.Constraint("Radius", 5, Q("0.0625 in")),
    Sketcher.Constraint("DistanceX", 7, 2, 7, 1, Q("0.05 in")),
    Sketcher.Constraint("DistanceY", 6, 2, 4, 2, Q("1.2 in")),
])
sketch4.setExpression("Constraints[18]", "Params.sketch4_radius")
sketch4.setExpression("Constraints[19]", "Params.sketch4_radius2")
sketch4.setExpression("Constraints[20]", "Params.sketch4_width")
pocket3 = body.newObject("PartDesign::Pocket", "Pocket002")
pocket3.Profile = sketch4
pocket3.setExpression("Length", "Params.pocket3_length")
pocket3.Reversed = True

doc.recompute()
